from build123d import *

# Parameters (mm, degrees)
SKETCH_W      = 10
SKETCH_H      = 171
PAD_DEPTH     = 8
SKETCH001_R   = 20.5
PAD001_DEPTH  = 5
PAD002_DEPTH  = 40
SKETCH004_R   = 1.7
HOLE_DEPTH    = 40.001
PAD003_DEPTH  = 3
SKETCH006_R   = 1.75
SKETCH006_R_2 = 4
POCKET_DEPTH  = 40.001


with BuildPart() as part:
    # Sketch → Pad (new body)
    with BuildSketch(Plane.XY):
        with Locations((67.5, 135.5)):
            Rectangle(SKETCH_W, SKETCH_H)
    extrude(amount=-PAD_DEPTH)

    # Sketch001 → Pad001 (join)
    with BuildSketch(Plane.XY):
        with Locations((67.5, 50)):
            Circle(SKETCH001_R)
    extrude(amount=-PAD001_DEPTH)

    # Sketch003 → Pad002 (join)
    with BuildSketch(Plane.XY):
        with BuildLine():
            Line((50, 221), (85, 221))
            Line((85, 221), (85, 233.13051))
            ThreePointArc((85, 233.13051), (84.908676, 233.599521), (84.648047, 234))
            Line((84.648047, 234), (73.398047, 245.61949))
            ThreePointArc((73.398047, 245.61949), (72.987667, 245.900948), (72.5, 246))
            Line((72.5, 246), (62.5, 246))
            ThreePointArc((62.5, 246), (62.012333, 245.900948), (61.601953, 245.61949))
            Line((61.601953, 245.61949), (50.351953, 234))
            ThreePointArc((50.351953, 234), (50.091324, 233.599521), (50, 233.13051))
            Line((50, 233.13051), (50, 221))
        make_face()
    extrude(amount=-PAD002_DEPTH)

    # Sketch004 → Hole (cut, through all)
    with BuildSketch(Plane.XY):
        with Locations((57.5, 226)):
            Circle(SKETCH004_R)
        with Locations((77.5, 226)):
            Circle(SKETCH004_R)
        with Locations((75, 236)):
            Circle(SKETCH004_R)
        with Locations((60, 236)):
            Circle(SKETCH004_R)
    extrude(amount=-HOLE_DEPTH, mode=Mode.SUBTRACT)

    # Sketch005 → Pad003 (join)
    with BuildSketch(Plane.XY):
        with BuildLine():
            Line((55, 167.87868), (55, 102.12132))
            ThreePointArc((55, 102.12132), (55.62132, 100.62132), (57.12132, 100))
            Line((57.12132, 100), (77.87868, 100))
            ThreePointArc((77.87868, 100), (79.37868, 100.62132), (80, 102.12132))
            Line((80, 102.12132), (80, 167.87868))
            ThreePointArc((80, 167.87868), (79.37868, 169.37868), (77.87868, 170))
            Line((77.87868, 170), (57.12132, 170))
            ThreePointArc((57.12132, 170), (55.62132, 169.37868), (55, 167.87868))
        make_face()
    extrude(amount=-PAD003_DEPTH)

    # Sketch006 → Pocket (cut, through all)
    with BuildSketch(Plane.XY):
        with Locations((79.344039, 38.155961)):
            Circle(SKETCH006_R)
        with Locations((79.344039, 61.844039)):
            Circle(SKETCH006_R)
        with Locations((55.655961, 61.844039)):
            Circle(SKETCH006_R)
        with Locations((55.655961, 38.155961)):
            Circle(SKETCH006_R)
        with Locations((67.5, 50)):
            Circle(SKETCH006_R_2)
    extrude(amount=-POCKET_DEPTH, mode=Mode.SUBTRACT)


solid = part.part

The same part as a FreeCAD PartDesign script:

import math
import FreeCAD as App
import Part
import Sketcher
from FreeCAD import Vector
Q = App.Units.Quantity

doc = App.newDocument("Part")
params = doc.addObject("Spreadsheet::Sheet", "Params")
for row, (alias, value) in enumerate([
    ("sketch1_width", "10 mm"),
    ("sketch1_height", "171 mm"),
    ("pad1_length", "8 mm"),
    ("sketch2_diameter", "41 mm"),
    ("pad2_length", "5 mm"),
    ("sketch3_width", "35 mm"),
    ("sketch3_width2", "10 mm"),
    ("sketch3_radius", "1.250001 mm"),
    ("pad3_length", "40 mm"),
    ("sketch4_diameter", "3.4 mm"),
    ("pad4_length", "3 mm"),
    ("sketch6_diameter", "8 mm"),
    ("sketch6_diameter2", "3.5 mm"),
], start=1):
    params.set(f"A{row}", alias)
    params.set(f"B{row}", "=" + value)
    params.setAlias(f"B{row}", alias)

body = doc.addObject("PartDesign::Body", "Body")

# Sketch on XY plane
sketch1 = doc.addObject("Sketcher::SketchObject", "Sketch")
body.addObject(sketch1)
sketch1.AttachmentSupport = (doc.XY_Plane, [""])
sketch1.MapMode = "FlatFace"
sketch1.addGeometry(Part.LineSegment(Vector(62, 221, 0), Vector(62, 50, 0)), False)
sketch1.addGeometry(Part.LineSegment(Vector(62, 50, 0), Vector(72, 50, 0)), False)
sketch1.addGeometry(Part.LineSegment(Vector(72, 50, 0), Vector(72, 221, 0)), False)
sketch1.addGeometry(Part.LineSegment(Vector(72, 221, 0), Vector(62, 221, 0)), False)
sketch1.addConstraint(Sketcher.Constraint("Coincident", 0, 2, 1, 1))
sketch1.addConstraint(Sketcher.Constraint("Coincident", 1, 2, 2, 1))
sketch1.addConstraint(Sketcher.Constraint("Coincident", 2, 2, 3, 1))
sketch1.addConstraint(Sketcher.Constraint("Coincident", 3, 2, 0, 1))
sketch1.addConstraint(Sketcher.Constraint("Vertical", 0))
sketch1.addConstraint(Sketcher.Constraint("Horizontal", 1))
sketch1.addConstraint(Sketcher.Constraint("Vertical", 2))
sketch1.addConstraint(Sketcher.Constraint("Horizontal", 3))
sketch1.addConstraint(Sketcher.Constraint("DistanceX", 1, 1, 1, 2, Q("10 mm")))
sketch1.addConstraint(Sketcher.Constraint("DistanceY", 0, 2, 0, 1, Q("171 mm")))
sketch1.addConstraint(Sketcher.Constraint("DistanceY", -1, 1, 0, 2, Q("50 mm")))
sketch1.addConstraint(Sketcher.Constraint("DistanceX", -1, 1, 0, 2, Q("62.5 mm")))
sketch1.setExpression("Constraints[8]", "Params.sketch1_width")
sketch1.setExpression("Constraints[9]", "Params.sketch1_height")
pad1 = doc.addObject("PartDesign::Pad", "Pad")
body.addObject(pad1)
pad1.Profile = sketch1
pad1.setExpression("Length", "Params.pad1_length")
pad1.Reversed = True

# Sketch on XY plane
sketch2 = doc.addObject("Sketcher::SketchObject", "Sketch001")
body.addObject(sketch2)
sketch2.AttachmentSupport = (doc.XY_Plane, [""])
sketch2.MapMode = "FlatFace"
sketch2.addGeometry(Part.Circle(Vector(68, 50, 0), Vector(0, 0, 1), 20), False)
sketch2.addConstraint(Sketcher.Constraint("Diameter", 0, Q("41 mm")))
sketch2.addConstraint(Sketcher.Constraint("DistanceY", -1, 1, 0, 3, Q("50 mm")))
sketch2.addConstraint(Sketcher.Constraint("DistanceX", -1, 1, 0, 3, Q("67.5 mm")))
sketch2.setExpression("Constraints[0]", "Params.sketch2_diameter")
pad2 = doc.addObject("PartDesign::Pad", "Pad001")
body.addObject(pad2)
pad2.Profile = sketch2
pad2.setExpression("Length", "Params.pad2_length")
pad2.Reversed = True

# Sketch on XY plane
sketch3 = doc.addObject("Sketcher::SketchObject", "Sketch002")
body.addObject(sketch3)
sketch3.AttachmentSupport = (doc.XY_Plane, [""])
sketch3.MapMode = "FlatFace"
sketch3.addGeometry(Part.LineSegment(Vector(50, 221, 0), Vector(85, 221, 0)), False)
sketch3.addGeometry(Part.LineSegment(Vector(85, 221, 0), Vector(85, 233.1, 0)), False)
sketch3.addGeometry(Part.ArcOfCircle(Part.Circle(Vector(83.8, 233.1, 0), Vector(0, 0, 1), 1.2), math.radians(0), math.radians(44)), False)
sketch3.addGeometry(Part.LineSegment(Vector(84.6, 234, 0), Vector(73.4, 245.6, 0)), False)
sketch3.addGeometry(Part.ArcOfCircle(Part.Circle(Vector(72.5, 244.7, 0), Vector(0, 0, 1), 1.3), math.radians(44), math.radians(90)), False)
sketch3.addGeometry(Part.LineSegment(Vector(72.5, 246, 0), Vector(62.5, 246, 0)), False)
sketch3.addGeometry(Part.ArcOfCircle(Part.Circle(Vector(62.5, 244.7, 0), Vector(0, 0, 1), 1.3), math.radians(90), math.radians(136)), False)
sketch3.addGeometry(Part.LineSegment(Vector(61.6, 245.6, 0), Vector(50.4, 234, 0)), False)
sketch3.addGeometry(Part.ArcOfCircle(Part.Circle(Vector(51.2, 233.1, 0), Vector(0, 0, 1), 1.2), math.radians(136), math.radians(180)), False)
sketch3.addGeometry(Part.LineSegment(Vector(50, 233.1, 0), Vector(50, 221, 0)), False)
sketch3.addConstraint(Sketcher.Constraint("Coincident", 0, 2, 1, 1))
sketch3.addConstraint(Sketcher.Constraint("Tangent", 1, 2, 2, 1))
sketch3.addConstraint(Sketcher.Constraint("Tangent", 2, 2, 3, 1))
sketch3.addConstraint(Sketcher.Constraint("Tangent", 3, 2, 4, 1))
sketch3.addConstraint(Sketcher.Constraint("Tangent", 4, 2, 5, 1))
sketch3.addConstraint(Sketcher.Constraint("Tangent", 5, 2, 6, 1))
sketch3.addConstraint(Sketcher.Constraint("Tangent", 6, 2, 7, 1))
sketch3.addConstraint(Sketcher.Constraint("Tangent", 7, 2, 8, 1))
sketch3.addConstraint(Sketcher.Constraint("Tangent", 8, 2, 9, 1))
sketch3.addConstraint(Sketcher.Constraint("Coincident", 9, 2, 0, 1))
sketch3.addConstraint(Sketcher.Constraint("Horizontal", 0))
sketch3.addConstraint(Sketcher.Constraint("Vertical", 1))
sketch3.addConstraint(Sketcher.Constraint("Horizontal", 5))
sketch3.addConstraint(Sketcher.Constraint("Vertical", 9))
sketch3.addConstraint(Sketcher.Constraint("Equal", 4, 6))
sketch3.addConstraint(Sketcher.Constraint("Equal", 2, 8))
sketch3.addConstraint(Sketcher.Constraint("Horizontal", 2, 3, 8, 3))
sketch3.addConstraint(Sketcher.Constraint("Horizontal", 3, 2, 6, 2))
sketch3.addConstraint(Sketcher.Constraint("DistanceX", 0, 1, 0, 2, Q("35 mm")))
sketch3.addConstraint(Sketcher.Constraint("DistanceX", 5, 2, 5, 1, Q("10 mm")))
sketch3.addConstraint(Sketcher.Constraint("Radius", 4, Q("1.250001 mm")))
sketch3.addConstraint(Sketcher.Constraint("DistanceX", -1, 1, 0, 2, Q("85 mm")))
sketch3.addConstraint(Sketcher.Constraint("DistanceY", -1, 1, 0, 2, Q("221 mm")))
sketch3.addConstraint(Sketcher.Constraint("DistanceY", -1, 1, 2, 2, Q("234 mm")))
sketch3.addConstraint(Sketcher.Constraint("DistanceY", -1, 1, 4, 2, Q("246 mm")))
sketch3.addConstraint(Sketcher.Constraint("DistanceX", 3, 2, 2, 2, Q("11.25 mm")))
sketch3.setExpression("Constraints[18]", "Params.sketch3_width")
sketch3.setExpression("Constraints[19]", "Params.sketch3_width2")
sketch3.setExpression("Constraints[20]", "Params.sketch3_radius")
pad3 = doc.addObject("PartDesign::Pad", "Pad002")
body.addObject(pad3)
pad3.Profile = sketch3
pad3.setExpression("Length", "Params.pad3_length")
pad3.Reversed = True

# Sketch on XY plane
sketch4 = doc.addObject("Sketcher::SketchObject", "Sketch003")
body.addObject(sketch4)
sketch4.AttachmentSupport = (doc.XY_Plane, [""])
sketch4.MapMode = "FlatFace"
sketch4.addGeometry(Part.Circle(Vector(57.5, 226, 0), Vector(0, 0, 1), 1.7), False)
sketch4.addGeometry(Part.Circle(Vector(77.5, 226, 0), Vector(0, 0, 1), 1.7), False)
sketch4.addGeometry(Part.Circle(Vector(75, 236, 0), Vector(0, 0, 1), 1.7), False)
sketch4.addGeometry(Part.Circle(Vector(60, 236, 0), Vector(0, 0, 1), 1.7), False)
sketch4.addConstraint(Sketcher.Constraint("Equal", 0, 1))
sketch4.addConstraint(Sketcher.Constraint("Equal", 1, 2))
sketch4.addConstraint(Sketcher.Constraint("Equal", 2, 3))
sketch4.addConstraint(Sketcher.Constraint("Horizontal", 0, 3, 1, 3))
sketch4.addConstraint(Sketcher.Constraint("Horizontal", 2, 3, 3, 3))
sketch4.addConstraint(Sketcher.Constraint("Diameter", 0, Q("3.4 mm")))
sketch4.addConstraint(Sketcher.Constraint("DistanceY", -1, 1, 0, 3, Q("226 mm")))
sketch4.addConstraint(Sketcher.Constraint("DistanceX", -1, 1, 2, 3, Q("75 mm")))
sketch4.addConstraint(Sketcher.Constraint("DistanceY", -1, 1, 2, 3, Q("236 mm")))
sketch4.addConstraint(Sketcher.Constraint("DistanceX", -1, 1, 3, 3, Q("60 mm")))
sketch4.addConstraint(Sketcher.Constraint("DistanceX", 0, 3, 1, 3, Q("20 mm")))
sketch4.addConstraint(Sketcher.Constraint("DistanceX", -1, 1, 0, 3, Q("57.5 mm")))
sketch4.setExpression("Constraints[5]", "Params.sketch4_diameter")
pocket1 = doc.addObject("PartDesign::Pocket", "Pocket")
body.addObject(pocket1)
pocket1.Profile = sketch4
pocket1.Type = "ThroughAll"

# Sketch on XY plane
sketch5 = doc.addObject("Sketcher::SketchObject", "Sketch004")
body.addObject(sketch5)
sketch5.AttachmentSupport = (doc.XY_Plane, [""])
sketch5.MapMode = "FlatFace"
sketch5.addGeometry(Part.LineSegment(Vector(55, 167.9, 0), Vector(55, 102.1, 0)), False)
sketch5.addGeometry(Part.ArcOfCircle(Part.Circle(Vector(57.1, 102.1, 0), Vector(0, 0, 1), 2.1), math.radians(180), math.radians(270)), False)
sketch5.addGeometry(Part.LineSegment(Vector(57.1, 100, 0), Vector(77.9, 100, 0)), False)
sketch5.addGeometry(Part.ArcOfCircle(Part.Circle(Vector(77.9, 102.1, 0), Vector(0, 0, 1), 2.1), math.radians(-90), math.radians(0)), False)
sketch5.addGeometry(Part.LineSegment(Vector(80, 102.1, 0), Vector(80, 167.9, 0)), False)
sketch5.addGeometry(Part.ArcOfCircle(Part.Circle(Vector(77.9, 167.9, 0), Vector(0, 0, 1), 2.1), math.radians(0), math.radians(90)), False)
sketch5.addGeometry(Part.LineSegment(Vector(77.9, 170, 0), Vector(57.1, 170, 0)), False)
sketch5.addGeometry(Part.ArcOfCircle(Part.Circle(Vector(57.1, 167.9, 0), Vector(0, 0, 1), 2.1), math.radians(90), math.radians(180)), False)
sketch5.addConstraint(Sketcher.Constraint("Tangent", 0, 2, 1, 1))
sketch5.addConstraint(Sketcher.Constraint("Tangent", 1, 2, 2, 1))
sketch5.addConstraint(Sketcher.Constraint("Tangent", 2, 2, 3, 1))
sketch5.addConstraint(Sketcher.Constraint("Tangent", 3, 2, 4, 1))
sketch5.addConstraint(Sketcher.Constraint("Tangent", 4, 2, 5, 1))
sketch5.addConstraint(Sketcher.Constraint("Tangent", 5, 2, 6, 1))
sketch5.addConstraint(Sketcher.Constraint("Tangent", 6, 2, 7, 1))
sketch5.addConstraint(Sketcher.Constraint("Tangent", 7, 2, 0, 1))
sketch5.addConstraint(Sketcher.Constraint("Vertical", 0))
sketch5.addConstraint(Sketcher.Constraint("Horizontal", 2))
sketch5.addConstraint(Sketcher.Constraint("Vertical", 4))
sketch5.addConstraint(Sketcher.Constraint("Horizontal", 6))
sketch5.addConstraint(Sketcher.Constraint("Equal", 1, 3))
sketch5.addConstraint(Sketcher.Constraint("Equal", 3, 5))
sketch5.addConstraint(Sketcher.Constraint("Equal", 5, 7))
sketch5.addConstraint(Sketcher.Constraint("DistanceX", -1, 1, 0, 2, Q("55 mm")))
sketch5.addConstraint(Sketcher.Constraint("DistanceY", -1, 1, 1, 2, Q("100 mm")))
sketch5.addConstraint(Sketcher.Constraint("DistanceX", -1, 1, 3, 2, Q("80 mm")))
sketch5.addConstraint(Sketcher.Constraint("DistanceY", -1, 1, 5, 2, Q("170 mm")))
sketch5.addConstraint(Sketcher.Constraint("Radius", 1, Q("2.121319 mm")))
pad4 = doc.addObject("PartDesign::Pad", "Pad003")
body.addObject(pad4)
pad4.Profile = sketch5
pad4.setExpression("Length", "Params.pad4_length")
pad4.Reversed = True

# Sketch on XY plane
sketch6 = doc.addObject("Sketcher::SketchObject", "Sketch005")
body.addObject(sketch6)
sketch6.AttachmentSupport = (doc.XY_Plane, [""])
sketch6.MapMode = "FlatFace"
sketch6.addGeometry(Part.Circle(Vector(79.3, 38.2, 0), Vector(0, 0, 1), 1.8), False)
sketch6.addGeometry(Part.Circle(Vector(79.3, 61.8, 0), Vector(0, 0, 1), 1.8), False)
sketch6.addGeometry(Part.Circle(Vector(55.7, 61.8, 0), Vector(0, 0, 1), 1.8), False)
sketch6.addGeometry(Part.Circle(Vector(55.7, 38.2, 0), Vector(0, 0, 1), 1.8), False)
sketch6.addGeometry(Part.Circle(Vector(67.5, 50, 0), Vector(0, 0, 1), 4), False)
sketch6.addConstraint(Sketcher.Constraint("Equal", 0, 1))
sketch6.addConstraint(Sketcher.Constraint("Equal", 1, 2))
sketch6.addConstraint(Sketcher.Constraint("Equal", 2, 3))
sketch6.addConstraint(Sketcher.Constraint("Horizontal", 1, 3, 2, 3))
sketch6.addConstraint(Sketcher.Constraint("Horizontal", 0, 3, 3, 3))
sketch6.addConstraint(Sketcher.Constraint("Vertical", 0, 3, 1, 3))
sketch6.addConstraint(Sketcher.Constraint("Vertical", 2, 3, 3, 3))
sketch6.addConstraint(Sketcher.Constraint("Diameter", 4, Q("8 mm")))
sketch6.addConstraint(Sketcher.Constraint("Diameter", 0, Q("3.5 mm")))
sketch6.addConstraint(Sketcher.Constraint("DistanceY", -1, 1, 4, 3, Q("50 mm")))
sketch6.addConstraint(Sketcher.Constraint("DistanceX", -1, 1, 4, 3, Q("67.5 mm")))
sketch6.addConstraint(Sketcher.Constraint("DistanceX", -1, 1, 0, 3, Q("79.344039 mm")))
sketch6.addConstraint(Sketcher.Constraint("DistanceY", -1, 1, 0, 3, Q("38.155961 mm")))
sketch6.addConstraint(Sketcher.Constraint("DistanceY", -1, 1, 1, 3, Q("61.844039 mm")))
sketch6.addConstraint(Sketcher.Constraint("DistanceX", -1, 1, 2, 3, Q("55.655961 mm")))
sketch6.setExpression("Constraints[7]", "Params.sketch6_diameter")
sketch6.setExpression("Constraints[8]", "Params.sketch6_diameter2")
pocket2 = doc.addObject("PartDesign::Pocket", "Pocket001")
body.addObject(pocket2)
pocket2.Profile = sketch6
pocket2.Type = "ThroughAll"

doc.recompute()
